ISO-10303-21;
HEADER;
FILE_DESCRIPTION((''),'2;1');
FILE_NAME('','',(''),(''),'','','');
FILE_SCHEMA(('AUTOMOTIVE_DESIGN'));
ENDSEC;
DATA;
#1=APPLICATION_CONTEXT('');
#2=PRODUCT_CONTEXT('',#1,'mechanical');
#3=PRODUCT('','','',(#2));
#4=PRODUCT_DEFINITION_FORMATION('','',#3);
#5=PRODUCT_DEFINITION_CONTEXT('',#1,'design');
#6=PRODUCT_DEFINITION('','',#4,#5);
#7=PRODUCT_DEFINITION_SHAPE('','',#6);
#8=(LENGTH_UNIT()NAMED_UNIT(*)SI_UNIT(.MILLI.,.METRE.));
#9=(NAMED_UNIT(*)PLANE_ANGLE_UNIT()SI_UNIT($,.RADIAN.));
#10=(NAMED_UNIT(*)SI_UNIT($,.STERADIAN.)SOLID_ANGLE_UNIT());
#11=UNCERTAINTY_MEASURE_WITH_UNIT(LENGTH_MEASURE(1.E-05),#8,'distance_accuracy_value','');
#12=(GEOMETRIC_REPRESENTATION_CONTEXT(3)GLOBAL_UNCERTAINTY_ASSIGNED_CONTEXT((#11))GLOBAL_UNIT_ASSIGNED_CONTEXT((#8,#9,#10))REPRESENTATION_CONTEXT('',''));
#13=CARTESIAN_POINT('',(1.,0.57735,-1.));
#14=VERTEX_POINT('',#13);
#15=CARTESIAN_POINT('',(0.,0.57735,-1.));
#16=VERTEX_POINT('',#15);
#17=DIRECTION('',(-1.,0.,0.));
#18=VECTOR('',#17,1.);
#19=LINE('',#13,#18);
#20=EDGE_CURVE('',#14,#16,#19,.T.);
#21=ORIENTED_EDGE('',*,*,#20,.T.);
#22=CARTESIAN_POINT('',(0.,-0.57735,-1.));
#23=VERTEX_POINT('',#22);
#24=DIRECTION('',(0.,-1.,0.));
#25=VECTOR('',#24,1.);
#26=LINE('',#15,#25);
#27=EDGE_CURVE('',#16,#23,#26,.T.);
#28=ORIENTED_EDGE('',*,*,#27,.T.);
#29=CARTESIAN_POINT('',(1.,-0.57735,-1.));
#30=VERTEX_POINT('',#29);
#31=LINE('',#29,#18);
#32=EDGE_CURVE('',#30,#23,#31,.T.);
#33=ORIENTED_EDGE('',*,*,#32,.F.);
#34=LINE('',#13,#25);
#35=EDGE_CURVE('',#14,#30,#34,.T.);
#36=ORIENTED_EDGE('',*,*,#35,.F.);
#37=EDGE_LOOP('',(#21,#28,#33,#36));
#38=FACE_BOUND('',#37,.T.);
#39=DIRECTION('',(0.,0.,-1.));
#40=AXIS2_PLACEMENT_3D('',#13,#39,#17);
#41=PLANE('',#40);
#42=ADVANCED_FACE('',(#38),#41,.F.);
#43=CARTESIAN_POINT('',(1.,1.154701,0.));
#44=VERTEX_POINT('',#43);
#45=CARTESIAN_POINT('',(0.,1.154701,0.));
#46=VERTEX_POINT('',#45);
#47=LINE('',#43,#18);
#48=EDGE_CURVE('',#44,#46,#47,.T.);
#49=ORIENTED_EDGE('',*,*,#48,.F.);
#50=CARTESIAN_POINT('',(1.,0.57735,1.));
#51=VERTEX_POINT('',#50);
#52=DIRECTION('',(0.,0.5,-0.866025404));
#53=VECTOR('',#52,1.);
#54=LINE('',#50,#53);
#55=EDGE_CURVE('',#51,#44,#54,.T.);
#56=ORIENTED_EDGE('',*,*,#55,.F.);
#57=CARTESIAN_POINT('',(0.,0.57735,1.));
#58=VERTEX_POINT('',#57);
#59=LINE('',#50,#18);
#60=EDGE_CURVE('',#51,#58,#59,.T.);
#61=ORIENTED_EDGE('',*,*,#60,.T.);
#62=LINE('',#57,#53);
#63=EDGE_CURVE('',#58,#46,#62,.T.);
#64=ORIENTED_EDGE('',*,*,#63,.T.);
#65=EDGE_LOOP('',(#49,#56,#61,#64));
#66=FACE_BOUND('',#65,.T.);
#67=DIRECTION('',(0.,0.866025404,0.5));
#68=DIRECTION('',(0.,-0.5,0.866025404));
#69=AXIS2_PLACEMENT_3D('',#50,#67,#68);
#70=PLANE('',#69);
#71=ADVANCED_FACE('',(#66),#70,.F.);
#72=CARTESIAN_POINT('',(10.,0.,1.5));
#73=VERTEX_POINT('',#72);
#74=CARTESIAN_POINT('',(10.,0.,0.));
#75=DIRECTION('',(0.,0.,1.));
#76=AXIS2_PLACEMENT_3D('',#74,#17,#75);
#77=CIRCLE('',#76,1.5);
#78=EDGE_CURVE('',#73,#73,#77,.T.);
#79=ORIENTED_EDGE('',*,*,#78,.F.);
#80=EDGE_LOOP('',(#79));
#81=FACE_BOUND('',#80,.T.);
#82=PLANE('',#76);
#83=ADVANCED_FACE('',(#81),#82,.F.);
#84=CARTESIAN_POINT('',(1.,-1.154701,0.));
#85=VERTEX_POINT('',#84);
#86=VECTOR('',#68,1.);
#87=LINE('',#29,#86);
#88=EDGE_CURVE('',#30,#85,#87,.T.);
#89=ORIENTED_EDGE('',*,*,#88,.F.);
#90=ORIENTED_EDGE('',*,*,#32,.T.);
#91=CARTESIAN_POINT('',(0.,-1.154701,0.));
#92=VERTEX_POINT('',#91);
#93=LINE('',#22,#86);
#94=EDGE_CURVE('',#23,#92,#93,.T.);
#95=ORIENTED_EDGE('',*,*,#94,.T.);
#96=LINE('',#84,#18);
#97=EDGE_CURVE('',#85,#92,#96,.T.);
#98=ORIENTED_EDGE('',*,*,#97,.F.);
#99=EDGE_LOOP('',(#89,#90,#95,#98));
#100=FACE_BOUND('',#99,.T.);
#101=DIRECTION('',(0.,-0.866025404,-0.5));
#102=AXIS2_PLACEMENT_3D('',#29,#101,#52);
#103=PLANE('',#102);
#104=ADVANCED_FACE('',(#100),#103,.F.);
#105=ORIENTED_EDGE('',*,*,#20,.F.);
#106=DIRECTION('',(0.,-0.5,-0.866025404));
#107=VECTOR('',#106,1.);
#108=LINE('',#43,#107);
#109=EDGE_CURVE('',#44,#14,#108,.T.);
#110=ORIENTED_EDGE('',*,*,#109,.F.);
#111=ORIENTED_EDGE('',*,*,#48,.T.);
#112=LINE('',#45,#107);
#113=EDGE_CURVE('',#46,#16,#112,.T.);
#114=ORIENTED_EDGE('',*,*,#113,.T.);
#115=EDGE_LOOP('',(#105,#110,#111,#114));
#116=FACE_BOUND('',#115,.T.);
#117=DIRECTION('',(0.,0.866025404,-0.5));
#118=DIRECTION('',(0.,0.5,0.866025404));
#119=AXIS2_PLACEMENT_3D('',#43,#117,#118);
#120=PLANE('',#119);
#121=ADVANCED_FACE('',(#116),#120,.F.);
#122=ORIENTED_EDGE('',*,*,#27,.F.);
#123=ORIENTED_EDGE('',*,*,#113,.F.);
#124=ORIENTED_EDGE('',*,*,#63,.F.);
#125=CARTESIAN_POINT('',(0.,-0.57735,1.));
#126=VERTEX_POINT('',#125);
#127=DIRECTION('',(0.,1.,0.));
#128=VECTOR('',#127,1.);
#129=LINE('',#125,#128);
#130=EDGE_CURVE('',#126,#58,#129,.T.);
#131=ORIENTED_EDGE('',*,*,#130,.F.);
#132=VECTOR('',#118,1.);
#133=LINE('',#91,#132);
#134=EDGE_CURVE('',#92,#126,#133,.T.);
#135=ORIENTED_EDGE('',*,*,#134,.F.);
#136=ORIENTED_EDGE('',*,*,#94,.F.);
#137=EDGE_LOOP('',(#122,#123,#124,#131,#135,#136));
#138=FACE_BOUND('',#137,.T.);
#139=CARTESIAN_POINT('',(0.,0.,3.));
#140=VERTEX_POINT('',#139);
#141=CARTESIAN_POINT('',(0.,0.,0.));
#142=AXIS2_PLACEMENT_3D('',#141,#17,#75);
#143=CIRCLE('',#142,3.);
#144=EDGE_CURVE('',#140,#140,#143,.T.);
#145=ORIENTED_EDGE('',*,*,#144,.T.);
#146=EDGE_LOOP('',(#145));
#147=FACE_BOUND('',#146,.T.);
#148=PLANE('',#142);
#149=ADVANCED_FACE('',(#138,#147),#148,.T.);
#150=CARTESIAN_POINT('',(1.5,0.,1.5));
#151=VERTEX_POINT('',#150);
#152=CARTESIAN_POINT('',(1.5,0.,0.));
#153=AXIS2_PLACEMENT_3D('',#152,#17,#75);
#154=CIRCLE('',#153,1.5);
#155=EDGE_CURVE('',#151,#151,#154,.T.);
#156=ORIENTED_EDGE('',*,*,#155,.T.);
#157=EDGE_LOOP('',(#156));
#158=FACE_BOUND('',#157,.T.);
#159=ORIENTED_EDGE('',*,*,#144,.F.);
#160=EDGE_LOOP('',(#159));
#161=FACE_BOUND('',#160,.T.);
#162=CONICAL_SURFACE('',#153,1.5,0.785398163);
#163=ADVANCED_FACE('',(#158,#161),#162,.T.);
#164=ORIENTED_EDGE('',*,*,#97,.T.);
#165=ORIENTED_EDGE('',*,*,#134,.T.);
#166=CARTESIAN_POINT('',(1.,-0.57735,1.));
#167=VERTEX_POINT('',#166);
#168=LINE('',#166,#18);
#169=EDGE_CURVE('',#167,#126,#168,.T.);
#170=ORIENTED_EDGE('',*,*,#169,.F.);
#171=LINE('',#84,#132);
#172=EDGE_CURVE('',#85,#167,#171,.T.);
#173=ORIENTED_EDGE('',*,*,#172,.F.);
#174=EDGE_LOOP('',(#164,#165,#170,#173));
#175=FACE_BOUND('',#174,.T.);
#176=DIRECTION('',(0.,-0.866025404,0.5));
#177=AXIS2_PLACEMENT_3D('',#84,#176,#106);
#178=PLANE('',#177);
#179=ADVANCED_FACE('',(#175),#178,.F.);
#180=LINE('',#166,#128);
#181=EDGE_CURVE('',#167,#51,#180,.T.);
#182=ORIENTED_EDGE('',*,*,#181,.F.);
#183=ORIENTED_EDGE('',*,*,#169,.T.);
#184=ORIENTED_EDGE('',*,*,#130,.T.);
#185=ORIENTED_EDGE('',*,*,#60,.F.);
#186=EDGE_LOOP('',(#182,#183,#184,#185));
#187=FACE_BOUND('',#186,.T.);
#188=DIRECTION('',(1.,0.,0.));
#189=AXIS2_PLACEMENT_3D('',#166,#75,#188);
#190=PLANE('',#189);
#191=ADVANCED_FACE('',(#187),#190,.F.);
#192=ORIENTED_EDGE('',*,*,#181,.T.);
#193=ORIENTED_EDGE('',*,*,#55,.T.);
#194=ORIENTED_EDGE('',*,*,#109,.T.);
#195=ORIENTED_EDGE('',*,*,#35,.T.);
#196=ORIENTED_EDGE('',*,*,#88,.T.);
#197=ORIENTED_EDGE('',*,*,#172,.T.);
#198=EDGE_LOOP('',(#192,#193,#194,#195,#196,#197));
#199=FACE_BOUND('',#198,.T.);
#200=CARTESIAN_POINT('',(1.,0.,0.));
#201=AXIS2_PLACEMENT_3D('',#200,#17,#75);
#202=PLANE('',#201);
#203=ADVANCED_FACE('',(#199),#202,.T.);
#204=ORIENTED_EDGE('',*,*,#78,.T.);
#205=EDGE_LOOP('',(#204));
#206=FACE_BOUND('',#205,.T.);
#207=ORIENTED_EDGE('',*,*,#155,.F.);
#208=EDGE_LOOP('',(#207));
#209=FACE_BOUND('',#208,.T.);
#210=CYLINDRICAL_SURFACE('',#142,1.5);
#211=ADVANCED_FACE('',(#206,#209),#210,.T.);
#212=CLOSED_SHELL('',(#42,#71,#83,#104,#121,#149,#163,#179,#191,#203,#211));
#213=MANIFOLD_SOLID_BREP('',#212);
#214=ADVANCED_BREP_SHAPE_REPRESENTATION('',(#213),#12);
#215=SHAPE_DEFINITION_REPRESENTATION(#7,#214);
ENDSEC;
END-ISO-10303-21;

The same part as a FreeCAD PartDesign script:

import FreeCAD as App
import Part
import Sketcher
Q = App.Units.Quantity

doc = App.newDocument("Part")
body = doc.addObject("PartDesign::Body", "Body")

sketch1 = body.newObject("Sketcher::SketchObject", "Sketch")
sketch1.AttachmentSupport = (doc.getObject("XY_Plane"), [""])
sketch1.MapMode = "FlatFace"
sketch1.addGeometry(Part.LineSegment(App.Vector(0, 3, 0), App.Vector(0, 0, 0)), False)
sketch1.addGeometry(Part.LineSegment(App.Vector(0, 0, 0), App.Vector(10, 0, 0)), False)
sketch1.addGeometry(Part.LineSegment(App.Vector(10, 0, 0), App.Vector(10, 1.5, 0)), False)
sketch1.addGeometry(Part.LineSegment(App.Vector(10, 1.5, 0), App.Vector(1.5, 1.5, 0)), False)
sketch1.addGeometry(Part.LineSegment(App.Vector(1.5, 1.5, 0), App.Vector(0, 3, 0)), False)
sketch1.addConstraint(Sketcher.Constraint("Coincident", 0, 2, 1, 1))
sketch1.addConstraint(Sketcher.Constraint("Coincident", 1, 2, 2, 1))
sketch1.addConstraint(Sketcher.Constraint("Coincident", 2, 2, 3, 1))
sketch1.addConstraint(Sketcher.Constraint("Coincident", 3, 2, 4, 1))
sketch1.addConstraint(Sketcher.Constraint("Coincident", 4, 2, 0, 1))
sketch1.addConstraint(Sketcher.Constraint("Vertical", 0))
sketch1.addConstraint(Sketcher.Constraint("Horizontal", 1))
sketch1.addConstraint(Sketcher.Constraint("Vertical", 2))
sketch1.addConstraint(Sketcher.Constraint("Horizontal", 3))
sketch1.addConstraint(Sketcher.Constraint("Coincident", 0, 2, -1, 1))
sketch1.addConstraint(Sketcher.Constraint("DistanceX", 1, 1, 1, 2, 10.0))
sketch1.addConstraint(Sketcher.Constraint("DistanceY", 0, 2, 0, 1, 3.0))
sketch1.addConstraint(Sketcher.Constraint("Angle", 4, Q("135 deg")))
sketch1.addConstraint(Sketcher.Constraint("DistanceX", 3, 2, 3, 1, 8.5))
revolution = body.newObject("PartDesign::Revolution", "Revolution")
revolution.Profile = sketch1
revolution.ReferenceAxis = (sketch1, ["H_Axis"])
revolution.Angle = 360

sketch2 = body.newObject("Sketcher::SketchObject", "Sketch001")
sketch2.AttachmentSupport = (doc.getObject("YZ_Plane"), [""])
sketch2.MapMode = "FlatFace"
sketch2.addGeometry(Part.LineSegment(App.Vector(1.2, 0, 0), App.Vector(0.6, -1, 0)), False)
sketch2.addGeometry(Part.LineSegment(App.Vector(0.6, -1, 0), App.Vector(-0.6, -1, 0)), False)
sketch2.addGeometry(Part.LineSegment(App.Vector(-0.6, -1, 0), App.Vector(-1.2, 0, 0)), False)
sketch2.addGeometry(Part.LineSegment(App.Vector(-1.2, 0, 0), App.Vector(-0.6, 1, 0)), False)
sketch2.addGeometry(Part.LineSegment(App.Vector(-0.6, 1, 0), App.Vector(0.6, 1, 0)), False)
sketch2.addGeometry(Part.LineSegment(App.Vector(0.6, 1, 0), App.Vector(1.2, 0, 0)), False)
sketch2.addConstraint(Sketcher.Constraint("Coincident", 0, 2, 1, 1))
sketch2.addConstraint(Sketcher.Constraint("Coincident", 1, 2, 2, 1))
sketch2.addConstraint(Sketcher.Constraint("Coincident", 2, 2, 3, 1))
sketch2.addConstraint(Sketcher.Constraint("Coincident", 3, 2, 4, 1))
sketch2.addConstraint(Sketcher.Constraint("Coincident", 4, 2, 5, 1))
sketch2.addConstraint(Sketcher.Constraint("Coincident", 5, 2, 0, 1))
sketch2.addConstraint(Sketcher.Constraint("Horizontal", 1))
sketch2.addConstraint(Sketcher.Constraint("Horizontal", 4))
sketch2.addConstraint(Sketcher.Constraint("Symmetric", 0, 2, 3, 2, -1, 1))
sketch2.addConstraint(Sketcher.Constraint("Symmetric", 2, 2, 5, 2, -1, 1))
sketch2.addConstraint(Sketcher.Constraint("PointOnObject", 2, 2, -1))
sketch2.addConstraint(Sketcher.Constraint("Parallel", 2, 5))
sketch2.addConstraint(Sketcher.Constraint("Vertical", 1, 2, 3, 2))
sketch2.addConstraint(Sketcher.Constraint("Angle", 0, Q("-120 deg")))
sketch2.addConstraint(Sketcher.Constraint("DistanceY", 0, 2, -1, 1, 1.0))
sketch2.addConstraint(Sketcher.Constraint("DistanceX", 1, 2, 1, 1, 1.154701))
pocket1 = body.newObject("PartDesign::Pocket", "Pocket")
pocket1.Profile = sketch2
pocket1.Length = 1
pocket1.Reversed = True

doc.recompute()
